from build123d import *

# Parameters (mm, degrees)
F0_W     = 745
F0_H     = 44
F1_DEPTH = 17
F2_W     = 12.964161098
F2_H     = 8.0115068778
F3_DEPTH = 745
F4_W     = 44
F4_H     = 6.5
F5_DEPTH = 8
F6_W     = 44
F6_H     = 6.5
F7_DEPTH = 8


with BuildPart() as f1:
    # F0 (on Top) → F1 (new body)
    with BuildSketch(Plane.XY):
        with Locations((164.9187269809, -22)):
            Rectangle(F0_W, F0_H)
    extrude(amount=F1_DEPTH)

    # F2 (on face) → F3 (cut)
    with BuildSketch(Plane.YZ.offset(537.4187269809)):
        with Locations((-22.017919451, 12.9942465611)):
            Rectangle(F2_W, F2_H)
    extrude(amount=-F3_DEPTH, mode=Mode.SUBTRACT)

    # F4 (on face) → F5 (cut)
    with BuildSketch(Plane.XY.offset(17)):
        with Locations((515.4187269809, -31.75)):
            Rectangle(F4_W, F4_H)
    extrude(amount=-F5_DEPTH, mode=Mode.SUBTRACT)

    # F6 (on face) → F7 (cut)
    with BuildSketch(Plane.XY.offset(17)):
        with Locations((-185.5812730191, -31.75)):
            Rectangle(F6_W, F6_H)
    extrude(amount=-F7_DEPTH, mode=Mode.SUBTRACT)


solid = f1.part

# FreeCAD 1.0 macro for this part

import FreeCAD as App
import Part
import Sketcher

V = App.Vector
Q = App.Units.Quantity


def add_polygon(sketch, points):
    """Adds a closed chain of lines whose ends are joined by coincident constraints."""
    first, n = sketch.GeometryCount, len(points)
    for a, b in zip(points, points[1:] + points[:1]):
        sketch.addGeometry(Part.LineSegment(App.Vector(*a, 0), App.Vector(*b, 0)), False)
    for i in range(n):
        sketch.addConstraint(Sketcher.Constraint("Coincident", first + i, 2, first + (i + 1) % n, 1))

doc = App.newDocument("Part")
body = doc.addObject("PartDesign::Body", "Body")

# Sketch on XY plane
sketch1 = doc.addObject("Sketcher::SketchObject", "Sketch")
body.addObject(sketch1)
sketch1.AttachmentSupport = (doc.XY_Plane, [""])
sketch1.MapMode = "FlatFace"
add_polygon(sketch1, [(-207.581273, 0), (-207.581273, -44), (537.418727, -44), (537.418727, 0)])  # lines 0-3
sketch1.addConstraint(Sketcher.Constraint("Vertical", 0))
sketch1.addConstraint(Sketcher.Constraint("Horizontal", 1))
sketch1.addConstraint(Sketcher.Constraint("Vertical", 2))
sketch1.addConstraint(Sketcher.Constraint("Horizontal", 3))
sketch1.addConstraint(Sketcher.Constraint("PointOnObject", 2, 2, -1))
sketch1.addConstraint(Sketcher.Constraint("DistanceX", 1, 1, 1, 2, Q("745 mm")))
sketch1.addConstraint(Sketcher.Constraint("DistanceY", 0, 2, 0, 1, Q("44 mm")))
sketch1.addConstraint(Sketcher.Constraint("DistanceX", 0, 2, -1, 1, Q("207.581273 mm")))
pad1 = doc.addObject("PartDesign::Pad", "Pad")
body.addObject(pad1)
pad1.Profile = sketch1
pad1.Length = 17

# Sketch on YZ plane
sketch2 = doc.addObject("Sketcher::SketchObject", "Sketch001")
body.addObject(sketch2)
sketch2.AttachmentSupport = (doc.YZ_Plane, [""])
sketch2.MapMode = "FlatFace"
sketch2.AttachmentOffset = App.Placement(V(0, 0, 537.418727), App.Rotation())
add_polygon(sketch2, [(-28.5, 17), (-28.5, 8.988493), (-15.535839, 8.988493), (-15.535839, 17)])  # lines 0-3
sketch2.addConstraint(Sketcher.Constraint("Vertical", 0))
sketch2.addConstraint(Sketcher.Constraint("Horizontal", 1))
sketch2.addConstraint(Sketcher.Constraint("Vertical", 2))
sketch2.addConstraint(Sketcher.Constraint("Horizontal", 3))
sketch2.addConstraint(Sketcher.Constraint("DistanceY", -1, 1, 2, 2, Q("17 mm")))
sketch2.addConstraint(Sketcher.Constraint("DistanceX", 0, 2, -1, 1, Q("28.5 mm")))
sketch2.addConstraint(Sketcher.Constraint("DistanceX", 1, 1, 1, 2, Q("12.964161 mm")))
sketch2.addConstraint(Sketcher.Constraint("DistanceY", 0, 2, 0, 1, Q("8.011507 mm")))
pocket1 = doc.addObject("PartDesign::Pocket", "Pocket")
body.addObject(pocket1)
pocket1.Profile = sketch2
pocket1.Length = 745

# Sketch on XY plane
sketch3 = doc.addObject("Sketcher::SketchObject", "Sketch002")
body.addObject(sketch3)
sketch3.AttachmentSupport = (doc.XY_Plane, [""])
sketch3.MapMode = "FlatFace"
sketch3.AttachmentOffset = App.Placement(V(0, 0, 17), App.Rotation())
add_polygon(sketch3, [(493.418727, -28.5), (493.418727, -35), (537.418727, -35), (537.418727, -28.5)])  # lines 0-3
sketch3.addConstraint(Sketcher.Constraint("Vertical", 0))
sketch3.addConstraint(Sketcher.Constraint("Horizontal", 1))
sketch3.addConstraint(Sketcher.Constraint("Vertical", 2))
sketch3.addConstraint(Sketcher.Constraint("Horizontal", 3))
sketch3.addConstraint(Sketcher.Constraint("DistanceX", 1, 1, 1, 2, Q("44 mm")))
sketch3.addConstraint(Sketcher.Constraint("DistanceY", 0, 2, 0, 1, Q("6.5 mm")))
sketch3.addConstraint(Sketcher.Constraint("DistanceY", 0, 2, -1, 1, Q("35 mm")))
sketch3.addConstraint(Sketcher.Constraint("DistanceX", -1, 1, 0, 2, Q("493.418727 mm")))
pocket2 = doc.addObject("PartDesign::Pocket", "Pocket001")
body.addObject(pocket2)
pocket2.Profile = sketch3
pocket2.Length = 8

# Sketch on XY plane
sketch4 = doc.addObject("Sketcher::SketchObject", "Sketch003")
body.addObject(sketch4)
sketch4.AttachmentSupport = (doc.XY_Plane, [""])
sketch4.MapMode = "FlatFace"
sketch4.AttachmentOffset = App.Placement(V(0, 0, 17), App.Rotation())
add_polygon(sketch4, [(-207.581273, -28.5), (-207.581273, -35), (-163.581273, -35), (-163.581273, -28.5)])  # lines 0-3
sketch4.addConstraint(Sketcher.Constraint("Vertical", 0))
sketch4.addConstraint(Sketcher.Constraint("Horizontal", 1))
sketch4.addConstraint(Sketcher.Constraint("Vertical", 2))
sketch4.addConstraint(Sketcher.Constraint("Horizontal", 3))
sketch4.addConstraint(Sketcher.Constraint("DistanceX", 1, 1, 1, 2, Q("44 mm")))
sketch4.addConstraint(Sketcher.Constraint("DistanceY", 0, 2, 0, 1, Q("6.5 mm")))
sketch4.addConstraint(Sketcher.Constraint("DistanceY", 0, 2, -1, 1, Q("35 mm")))
sketch4.addConstraint(Sketcher.Constraint("DistanceX", 0, 2, -1, 1, Q("207.581273 mm")))
pocket3 = doc.addObject("PartDesign::Pocket", "Pocket002")
body.addObject(pocket3)
pocket3.Profile = sketch4
pocket3.Length = 8

doc.recompute()
